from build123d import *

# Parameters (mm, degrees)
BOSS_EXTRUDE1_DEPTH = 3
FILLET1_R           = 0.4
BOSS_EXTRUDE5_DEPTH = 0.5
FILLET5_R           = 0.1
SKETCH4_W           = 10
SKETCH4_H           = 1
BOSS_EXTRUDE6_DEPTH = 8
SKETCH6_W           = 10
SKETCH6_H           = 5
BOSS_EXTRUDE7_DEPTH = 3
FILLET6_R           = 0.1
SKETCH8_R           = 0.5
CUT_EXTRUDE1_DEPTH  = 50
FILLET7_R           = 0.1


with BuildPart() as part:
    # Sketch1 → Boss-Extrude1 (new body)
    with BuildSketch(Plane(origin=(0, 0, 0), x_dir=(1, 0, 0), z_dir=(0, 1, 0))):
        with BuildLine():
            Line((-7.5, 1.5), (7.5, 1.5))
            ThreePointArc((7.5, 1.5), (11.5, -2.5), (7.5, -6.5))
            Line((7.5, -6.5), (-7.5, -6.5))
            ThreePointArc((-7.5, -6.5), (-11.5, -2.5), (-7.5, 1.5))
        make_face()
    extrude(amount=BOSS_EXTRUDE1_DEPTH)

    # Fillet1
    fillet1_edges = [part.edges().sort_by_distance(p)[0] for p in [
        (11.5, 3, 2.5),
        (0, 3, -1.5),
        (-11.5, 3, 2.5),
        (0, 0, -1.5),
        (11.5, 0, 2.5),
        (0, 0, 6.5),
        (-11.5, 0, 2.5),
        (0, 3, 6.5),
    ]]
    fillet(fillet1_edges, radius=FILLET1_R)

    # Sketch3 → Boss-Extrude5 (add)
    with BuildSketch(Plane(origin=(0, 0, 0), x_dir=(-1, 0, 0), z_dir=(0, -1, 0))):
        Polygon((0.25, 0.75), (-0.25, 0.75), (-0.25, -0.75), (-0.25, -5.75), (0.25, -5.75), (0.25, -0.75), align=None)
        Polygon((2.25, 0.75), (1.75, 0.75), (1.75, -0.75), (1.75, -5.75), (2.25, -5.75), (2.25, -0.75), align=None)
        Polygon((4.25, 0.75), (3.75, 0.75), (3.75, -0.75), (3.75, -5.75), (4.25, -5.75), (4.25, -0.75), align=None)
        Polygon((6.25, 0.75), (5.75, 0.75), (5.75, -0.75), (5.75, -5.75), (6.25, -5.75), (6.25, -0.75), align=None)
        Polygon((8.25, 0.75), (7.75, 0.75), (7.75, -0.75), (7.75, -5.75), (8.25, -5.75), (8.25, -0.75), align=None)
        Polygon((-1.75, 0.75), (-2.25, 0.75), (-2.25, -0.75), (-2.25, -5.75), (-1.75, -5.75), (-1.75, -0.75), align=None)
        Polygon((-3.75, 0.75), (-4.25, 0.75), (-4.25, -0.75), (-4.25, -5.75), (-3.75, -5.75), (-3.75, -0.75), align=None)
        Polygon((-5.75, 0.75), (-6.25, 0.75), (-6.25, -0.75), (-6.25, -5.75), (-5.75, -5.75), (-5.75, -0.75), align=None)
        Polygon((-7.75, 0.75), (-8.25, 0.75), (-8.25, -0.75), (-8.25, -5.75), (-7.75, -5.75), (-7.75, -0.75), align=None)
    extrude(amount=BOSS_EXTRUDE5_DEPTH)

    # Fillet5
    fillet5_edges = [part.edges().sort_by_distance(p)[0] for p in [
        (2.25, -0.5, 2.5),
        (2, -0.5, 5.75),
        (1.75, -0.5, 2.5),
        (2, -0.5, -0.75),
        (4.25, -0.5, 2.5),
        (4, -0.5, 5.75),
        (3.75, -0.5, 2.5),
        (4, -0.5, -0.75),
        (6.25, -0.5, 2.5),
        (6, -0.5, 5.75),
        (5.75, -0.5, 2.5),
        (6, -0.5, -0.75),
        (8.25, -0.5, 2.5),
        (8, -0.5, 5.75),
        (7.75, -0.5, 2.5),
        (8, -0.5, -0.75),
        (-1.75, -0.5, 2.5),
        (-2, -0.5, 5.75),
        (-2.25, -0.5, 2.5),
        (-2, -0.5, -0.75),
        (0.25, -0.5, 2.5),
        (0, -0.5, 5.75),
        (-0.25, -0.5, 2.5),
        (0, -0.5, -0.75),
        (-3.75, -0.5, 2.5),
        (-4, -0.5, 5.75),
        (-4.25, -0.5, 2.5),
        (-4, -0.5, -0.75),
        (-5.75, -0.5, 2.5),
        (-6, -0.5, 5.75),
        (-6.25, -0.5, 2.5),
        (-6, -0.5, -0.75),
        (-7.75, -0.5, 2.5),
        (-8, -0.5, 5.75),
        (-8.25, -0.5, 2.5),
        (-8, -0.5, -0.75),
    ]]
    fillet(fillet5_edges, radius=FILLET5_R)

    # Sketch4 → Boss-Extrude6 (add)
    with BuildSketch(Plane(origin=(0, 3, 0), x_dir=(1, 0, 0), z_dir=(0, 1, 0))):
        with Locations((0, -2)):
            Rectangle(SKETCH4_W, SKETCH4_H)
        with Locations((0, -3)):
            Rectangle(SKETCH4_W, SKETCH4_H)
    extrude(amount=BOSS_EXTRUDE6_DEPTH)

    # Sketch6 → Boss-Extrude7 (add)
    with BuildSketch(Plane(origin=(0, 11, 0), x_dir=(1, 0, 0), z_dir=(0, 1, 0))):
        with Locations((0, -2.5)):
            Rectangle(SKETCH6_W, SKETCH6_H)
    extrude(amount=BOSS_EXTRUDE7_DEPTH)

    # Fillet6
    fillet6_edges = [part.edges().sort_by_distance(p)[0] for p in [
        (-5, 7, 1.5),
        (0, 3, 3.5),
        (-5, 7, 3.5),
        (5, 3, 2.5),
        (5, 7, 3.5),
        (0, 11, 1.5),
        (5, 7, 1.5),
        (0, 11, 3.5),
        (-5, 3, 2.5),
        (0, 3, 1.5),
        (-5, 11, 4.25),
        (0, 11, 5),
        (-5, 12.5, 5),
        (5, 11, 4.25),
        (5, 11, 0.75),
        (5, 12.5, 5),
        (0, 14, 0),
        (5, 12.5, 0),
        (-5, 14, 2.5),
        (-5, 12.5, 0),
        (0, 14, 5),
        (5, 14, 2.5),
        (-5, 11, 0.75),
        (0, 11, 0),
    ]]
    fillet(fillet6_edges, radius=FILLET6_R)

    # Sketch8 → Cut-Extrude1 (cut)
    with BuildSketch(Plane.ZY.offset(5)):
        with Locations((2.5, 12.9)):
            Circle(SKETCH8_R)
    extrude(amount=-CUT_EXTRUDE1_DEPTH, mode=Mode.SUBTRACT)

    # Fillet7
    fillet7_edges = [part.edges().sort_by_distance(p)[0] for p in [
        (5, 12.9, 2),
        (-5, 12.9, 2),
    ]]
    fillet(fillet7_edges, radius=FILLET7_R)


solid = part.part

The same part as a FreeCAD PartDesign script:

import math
import FreeCAD as App
import Part
import Sketcher

V = App.Vector
Q = App.Units.Quantity


def edges_at(feature, points):
    """Names of the edges that pass closest to the given points."""
    edges = feature.Shape.Edges
    near = lambda p: min(range(len(edges)), key=lambda i: edges[i].distToShape(Part.Vertex(*p))[0])
    return sorted({f"Edge{near(p) + 1}" for p in points})

doc = App.newDocument("Part")
body = doc.addObject("PartDesign::Body", "Body")

# Sketch on XZ plane
sketch1 = body.newObject("Sketcher::SketchObject", "Sketch")
sketch1.AttachmentSupport = (doc.getObject("XZ_Plane"), [""])
sketch1.MapMode = "FlatFace"
sketch1.addGeometry(Part.LineSegment(V(7.5, -1.5, 0), V(-7.5, -1.5, 0)), False)
sketch1.addGeometry(Part.ArcOfCircle(Part.Circle(V(-7.5, 2.5, 0), V(0, 0, 1), 4), math.radians(90), math.radians(270)), False)
sketch1.addGeometry(Part.LineSegment(V(-7.5, 6.5, 0), V(7.5, 6.5, 0)), False)
sketch1.addGeometry(Part.ArcOfCircle(Part.Circle(V(7.5, 2.5, 0), V(0, 0, 1), 4), math.radians(-90), math.radians(90)), False)
sketch1.addConstraint(Sketcher.Constraint("Tangent", 0, 2, 1, 2))
sketch1.addConstraint(Sketcher.Constraint("Tangent", 1, 1, 2, 1))
sketch1.addConstraint(Sketcher.Constraint("Tangent", 2, 2, 3, 2))
sketch1.addConstraint(Sketcher.Constraint("Tangent", 3, 1, 0, 1))
sketch1.addConstraint(Sketcher.Constraint("Horizontal", 0))
sketch1.addConstraint(Sketcher.Constraint("Horizontal", 2))
sketch1.addConstraint(Sketcher.Constraint("Radius", 1, Q("4 mm")))
sketch1.addConstraint(Sketcher.Constraint("DistanceX", 0, 2, 0, 1, Q("15 mm")))
sketch1.addConstraint(Sketcher.Constraint("DistanceX", 1, 3, -1, 1, Q("7.5 mm")))
sketch1.addConstraint(Sketcher.Constraint("DistanceY", -1, 1, 1, 3, Q("2.5 mm")))
pad1 = body.newObject("PartDesign::Pad", "Pad")
pad1.Profile = sketch1
pad1.Length = 3
pad1.Reversed = True
doc.recompute()

fillet = body.newObject("PartDesign::Fillet", "Fillet")
fillet.Base = (pad1, edges_at(pad1, [
    (11.5, 3, 2.5),
    (0, 3, -1.5),
    (-11.5, 3, 2.5),
    (0, 0, -1.5),
    (11.5, 0, 2.5),
    (0, 0, 6.5),
    (-11.5, 0, 2.5),
    (0, 3, 6.5),
]))
fillet.Radius = 0.4

# Sketch on XZ plane
sketch2 = body.newObject("Sketcher::SketchObject", "Sketch001")
sketch2.AttachmentSupport = (doc.getObject("XZ_Plane"), [""])
sketch2.MapMode = "FlatFace"
sketch2.addGeometry(Part.LineSegment(V(-0.2, -0.8, 0), V(0.2, -0.8, 0)), False)
sketch2.addGeometry(Part.LineSegment(V(0.2, -0.8, 0), V(0.2, 5.8, 0)), False)
sketch2.addGeometry(Part.LineSegment(V(0.2, 5.8, 0), V(-0.2, 5.8, 0)), False)
sketch2.addGeometry(Part.LineSegment(V(-0.2, 5.8, 0), V(-0.2, -0.8, 0)), False)
sketch2.addGeometry(Part.LineSegment(V(-2.2, -0.8, 0), V(-1.8, -0.8, 0)), False)
sketch2.addGeometry(Part.LineSegment(V(-1.8, -0.8, 0), V(-1.8, 5.8, 0)), False)
sketch2.addGeometry(Part.LineSegment(V(-1.8, 5.8, 0), V(-2.2, 5.8, 0)), False)
sketch2.addGeometry(Part.LineSegment(V(-2.2, 5.8, 0), V(-2.2, -0.8, 0)), False)
sketch2.addGeometry(Part.LineSegment(V(-4.2, -0.8, 0), V(-3.8, -0.8, 0)), False)
sketch2.addGeometry(Part.LineSegment(V(-3.8, -0.8, 0), V(-3.8, 5.8, 0)), False)
sketch2.addGeometry(Part.LineSegment(V(-3.8, 5.8, 0), V(-4.2, 5.8, 0)), False)
sketch2.addGeometry(Part.LineSegment(V(-4.2, 5.8, 0), V(-4.2, -0.8, 0)), False)
sketch2.addGeometry(Part.LineSegment(V(-6.2, -0.8, 0), V(-5.8, -0.8, 0)), False)
sketch2.addGeometry(Part.LineSegment(V(-5.8, -0.8, 0), V(-5.8, 5.8, 0)), False)
sketch2.addGeometry(Part.LineSegment(V(-5.8, 5.8, 0), V(-6.2, 5.8, 0)), False)
sketch2.addGeometry(Part.LineSegment(V(-6.2, 5.8, 0), V(-6.2, -0.8, 0)), False)
sketch2.addGeometry(Part.LineSegment(V(-8.2, -0.8, 0), V(-7.8, -0.8, 0)), False)
sketch2.addGeometry(Part.LineSegment(V(-7.8, -0.8, 0), V(-7.8, 5.8, 0)), False)
sketch2.addGeometry(Part.LineSegment(V(-7.8, 5.8, 0), V(-8.2, 5.8, 0)), False)
sketch2.addGeometry(Part.LineSegment(V(-8.2, 5.8, 0), V(-8.2, -0.8, 0)), False)
sketch2.addGeometry(Part.LineSegment(V(1.8, -0.8, 0), V(2.2, -0.8, 0)), False)
sketch2.addGeometry(Part.LineSegment(V(2.2, -0.8, 0), V(2.2, 5.8, 0)), False)
sketch2.addGeometry(Part.LineSegment(V(2.2, 5.8, 0), V(1.8, 5.8, 0)), False)
sketch2.addGeometry(Part.LineSegment(V(1.8, 5.8, 0), V(1.8, -0.8, 0)), False)
sketch2.addGeometry(Part.LineSegment(V(3.8, -0.8, 0), V(4.2, -0.8, 0)), False)
sketch2.addGeometry(Part.LineSegment(V(4.2, -0.8, 0), V(4.2, 5.8, 0)), False)
sketch2.addGeometry(Part.LineSegment(V(4.2, 5.8, 0), V(3.8, 5.8, 0)), False)
sketch2.addGeometry(Part.LineSegment(V(3.8, 5.8, 0), V(3.8, -0.8, 0)), False)
sketch2.addGeometry(Part.LineSegment(V(5.8, -0.8, 0), V(6.2, -0.8, 0)), False)
sketch2.addGeometry(Part.LineSegment(V(6.2, -0.8, 0), V(6.2, 5.8, 0)), False)
sketch2.addGeometry(Part.LineSegment(V(6.2, 5.8, 0), V(5.8, 5.8, 0)), False)
sketch2.addGeometry(Part.LineSegment(V(5.8, 5.8, 0), V(5.8, -0.8, 0)), False)
sketch2.addGeometry(Part.LineSegment(V(7.8, -0.8, 0), V(8.2, -0.8, 0)), False)
sketch2.addGeometry(Part.LineSegment(V(8.2, -0.8, 0), V(8.2, 5.8, 0)), False)
sketch2.addGeometry(Part.LineSegment(V(8.2, 5.8, 0), V(7.8, 5.8, 0)), False)
sketch2.addGeometry(Part.LineSegment(V(7.8, 5.8, 0), V(7.8, -0.8, 0)), False)
sketch2.addConstraint(Sketcher.Constraint("Coincident", 0, 2, 1, 1))
sketch2.addConstraint(Sketcher.Constraint("Coincident", 1, 2, 2, 1))
sketch2.addConstraint(Sketcher.Constraint("Coincident", 2, 2, 3, 1))
sketch2.addConstraint(Sketcher.Constraint("Coincident", 3, 2, 0, 1))
sketch2.addConstraint(Sketcher.Constraint("Coincident", 4, 2, 5, 1))
sketch2.addConstraint(Sketcher.Constraint("Coincident", 5, 2, 6, 1))
sketch2.addConstraint(Sketcher.Constraint("Coincident", 6, 2, 7, 1))
sketch2.addConstraint(Sketcher.Constraint("Coincident", 7, 2, 4, 1))
sketch2.addConstraint(Sketcher.Constraint("Coincident", 8, 2, 9, 1))
sketch2.addConstraint(Sketcher.Constraint("Coincident", 9, 2, 10, 1))
sketch2.addConstraint(Sketcher.Constraint("Coincident", 10, 2, 11, 1))
sketch2.addConstraint(Sketcher.Constraint("Coincident", 11, 2, 8, 1))
sketch2.addConstraint(Sketcher.Constraint("Coincident", 12, 2, 13, 1))
sketch2.addConstraint(Sketcher.Constraint("Coincident", 13, 2, 14, 1))
sketch2.addConstraint(Sketcher.Constraint("Coincident", 14, 2, 15, 1))
sketch2.addConstraint(Sketcher.Constraint("Coincident", 15, 2, 12, 1))
sketch2.addConstraint(Sketcher.Constraint("Coincident", 16, 2, 17, 1))
sketch2.addConstraint(Sketcher.Constraint("Coincident", 17, 2, 18, 1))
sketch2.addConstraint(Sketcher.Constraint("Coincident", 18, 2, 19, 1))
sketch2.addConstraint(Sketcher.Constraint("Coincident", 19, 2, 16, 1))
sketch2.addConstraint(Sketcher.Constraint("Coincident", 20, 2, 21, 1))
sketch2.addConstraint(Sketcher.Constraint("Coincident", 21, 2, 22, 1))
sketch2.addConstraint(Sketcher.Constraint("Coincident", 22, 2, 23, 1))
sketch2.addConstraint(Sketcher.Constraint("Coincident", 23, 2, 20, 1))
sketch2.addConstraint(Sketcher.Constraint("Coincident", 24, 2, 25, 1))
sketch2.addConstraint(Sketcher.Constraint("Coincident", 25, 2, 26, 1))
sketch2.addConstraint(Sketcher.Constraint("Coincident", 26, 2, 27, 1))
sketch2.addConstraint(Sketcher.Constraint("Coincident", 27, 2, 24, 1))
sketch2.addConstraint(Sketcher.Constraint("Coincident", 28, 2, 29, 1))
sketch2.addConstraint(Sketcher.Constraint("Coincident", 29, 2, 30, 1))
sketch2.addConstraint(Sketcher.Constraint("Coincident", 30, 2, 31, 1))
sketch2.addConstraint(Sketcher.Constraint("Coincident", 31, 2, 28, 1))
sketch2.addConstraint(Sketcher.Constraint("Coincident", 32, 2, 33, 1))
sketch2.addConstraint(Sketcher.Constraint("Coincident", 33, 2, 34, 1))
sketch2.addConstraint(Sketcher.Constraint("Coincident", 34, 2, 35, 1))
sketch2.addConstraint(Sketcher.Constraint("Coincident", 35, 2, 32, 1))
sketch2.addConstraint(Sketcher.Constraint("Horizontal", 0))
sketch2.addConstraint(Sketcher.Constraint("Vertical", 1))
sketch2.addConstraint(Sketcher.Constraint("Horizontal", 2))
sketch2.addConstraint(Sketcher.Constraint("Vertical", 3))
sketch2.addConstraint(Sketcher.Constraint("Horizontal", 4))
sketch2.addConstraint(Sketcher.Constraint("Vertical", 5))
sketch2.addConstraint(Sketcher.Constraint("Horizontal", 6))
sketch2.addConstraint(Sketcher.Constraint("Vertical", 7))
sketch2.addConstraint(Sketcher.Constraint("Horizontal", 8))
sketch2.addConstraint(Sketcher.Constraint("Vertical", 9))
sketch2.addConstraint(Sketcher.Constraint("Horizontal", 10))
sketch2.addConstraint(Sketcher.Constraint("Vertical", 11))
sketch2.addConstraint(Sketcher.Constraint("Horizontal", 12))
sketch2.addConstraint(Sketcher.Constraint("Vertical", 13))
sketch2.addConstraint(Sketcher.Constraint("Horizontal", 14))
sketch2.addConstraint(Sketcher.Constraint("Vertical", 15))
sketch2.addConstraint(Sketcher.Constraint("Horizontal", 16))
sketch2.addConstraint(Sketcher.Constraint("Vertical", 17))
sketch2.addConstraint(Sketcher.Constraint("Horizontal", 18))
sketch2.addConstraint(Sketcher.Constraint("Vertical", 19))
sketch2.addConstraint(Sketcher.Constraint("Horizontal", 20))
sketch2.addConstraint(Sketcher.Constraint("Vertical", 21))
sketch2.addConstraint(Sketcher.Constraint("Horizontal", 22))
sketch2.addConstraint(Sketcher.Constraint("Vertical", 23))
sketch2.addConstraint(Sketcher.Constraint("Horizontal", 24))
sketch2.addConstraint(Sketcher.Constraint("Vertical", 25))
sketch2.addConstraint(Sketcher.Constraint("Horizontal", 26))
sketch2.addConstraint(Sketcher.Constraint("Vertical", 27))
sketch2.addConstraint(Sketcher.Constraint("Horizontal", 28))
sketch2.addConstraint(Sketcher.Constraint("Vertical", 29))
sketch2.addConstraint(Sketcher.Constraint("Horizontal", 30))
sketch2.addConstraint(Sketcher.Constraint("Vertical", 31))
sketch2.addConstraint(Sketcher.Constraint("Horizontal", 32))
sketch2.addConstraint(Sketcher.Constraint("Vertical", 33))
sketch2.addConstraint(Sketcher.Constraint("Horizontal", 34))
sketch2.addConstraint(Sketcher.Constraint("Vertical", 35))
sketch2.addConstraint(Sketcher.Constraint("Symmetric", 7, 2, 20, 2, -2))
sketch2.addConstraint(Sketcher.Constraint("Symmetric", 5, 2, 22, 2, -2))
sketch2.addConstraint(Sketcher.Constraint("Symmetric", 11, 2, 24, 2, -2))
sketch2.addConstraint(Sketcher.Constraint("Symmetric", 9, 2, 26, 2, -2))
sketch2.addConstraint(Sketcher.Constraint("Symmetric", 15, 2, 28, 2, -2))
sketch2.addConstraint(Sketcher.Constraint("Symmetric", 13, 2, 30, 2, -2))
sketch2.addConstraint(Sketcher.Constraint("Symmetric", 19, 2, 32, 2, -2))
sketch2.addConstraint(Sketcher.Constraint("Symmetric", 17, 2, 34, 2, -2))
sketch2.addConstraint(Sketcher.Constraint("Horizontal", 3, 2, 4, 2))
sketch2.addConstraint(Sketcher.Constraint("Horizontal", 2, 2, 5, 2))
sketch2.addConstraint(Sketcher.Constraint("Horizontal", 7, 2, 8, 2))
sketch2.addConstraint(Sketcher.Constraint("Horizontal", 6, 2, 9, 2))
sketch2.addConstraint(Sketcher.Constraint("Horizontal", 11, 2, 12, 2))
sketch2.addConstraint(Sketcher.Constraint("Horizontal", 10, 2, 13, 2))
sketch2.addConstraint(Sketcher.Constraint("Horizontal", 15, 2, 16, 2))
sketch2.addConstraint(Sketcher.Constraint("Horizontal", 14, 2, 17, 2))
sketch2.addConstraint(Sketcher.Constraint("Equal", 2, 4))
sketch2.addConstraint(Sketcher.Constraint("Equal", 6, 8))
sketch2.addConstraint(Sketcher.Constraint("Equal", 10, 12))
sketch2.addConstraint(Sketcher.Constraint("Equal", 14, 16))
sketch2.addConstraint(Sketcher.Constraint("DistanceX", 0, 1, 0, 2, Q("0.5 mm")))
sketch2.addConstraint(Sketcher.Constraint("DistanceY", 1, 1, 1, 2, Q("6.5 mm")))
sketch2.addConstraint(Sketcher.Constraint("DistanceX", 4, 2, 0, 2, Q("2 mm")))
sketch2.addConstraint(Sketcher.Constraint("DistanceX", 8, 2, 4, 2, Q("2 mm")))
sketch2.addConstraint(Sketcher.Constraint("DistanceX", 12, 2, 8, 2, Q("2 mm")))
sketch2.addConstraint(Sketcher.Constraint("DistanceX", 16, 2, 12, 2, Q("2 mm")))
sketch2.addConstraint(Sketcher.Constraint("DistanceX", 0, 2, 20, 2, Q("2 mm")))
sketch2.addConstraint(Sketcher.Constraint("DistanceY", 0, 2, -1, 1, Q("0.75 mm")))
pad2 = body.newObject("PartDesign::Pad", "Pad001")
pad2.Profile = sketch2
pad2.Length = 0.5
doc.recompute()

fillet2 = body.newObject("PartDesign::Fillet", "Fillet001")
fillet2.Base = (pad2, edges_at(pad2, [
    (2.25, -0.5, 2.5),
    (2, -0.5, 5.75),
    (1.75, -0.5, 2.5),
    (2, -0.5, -0.75),
    (4.25, -0.5, 2.5),
    (4, -0.5, 5.75),
    (3.75, -0.5, 2.5),
    (4, -0.5, -0.75),
    (6.25, -0.5, 2.5),
    (6, -0.5, 5.75),
    (5.75, -0.5, 2.5),
    (6, -0.5, -0.75),
    (8.25, -0.5, 2.5),
    (8, -0.5, 5.75),
    (7.75, -0.5, 2.5),
    (8, -0.5, -0.75),
    (-1.75, -0.5, 2.5),
    (-2, -0.5, 5.75),
    (-2.25, -0.5, 2.5),
    (-2, -0.5, -0.75),
    (0.25, -0.5, 2.5),
    (0, -0.5, 5.75),
    (-0.25, -0.5, 2.5),
    (0, -0.5, -0.75),
    (-3.75, -0.5, 2.5),
    (-4, -0.5, 5.75),
    (-4.25, -0.5, 2.5),
    (-4, -0.5, -0.75),
    (-5.75, -0.5, 2.5),
    (-6, -0.5, 5.75),
    (-6.25, -0.5, 2.5),
    (-6, -0.5, -0.75),
    (-7.75, -0.5, 2.5),
    (-8, -0.5, 5.75),
    (-8.25, -0.5, 2.5),
    (-8, -0.5, -0.75),
]))
fillet2.Radius = 0.1

# Sketch on XZ plane
sketch3 = body.newObject("Sketcher::SketchObject", "Sketch002")
sketch3.AttachmentSupport = (doc.getObject("XZ_Plane"), [""])
sketch3.MapMode = "FlatFace"
sketch3.AttachmentOffset = App.Placement(V(0, 0, -3), App.Rotation())
sketch3.addGeometry(Part.LineSegment(V(-5, 1.5, 0), V(-5, 3.5, 0)), False)
sketch3.addGeometry(Part.LineSegment(V(-5, 3.5, 0), V(5, 3.5, 0)), False)
sketch3.addGeometry(Part.LineSegment(V(5, 3.5, 0), V(5, 1.5, 0)), False)
sketch3.addGeometry(Part.LineSegment(V(5, 1.5, 0), V(-5, 1.5, 0)), False)
sketch3.addConstraint(Sketcher.Constraint("Coincident", 0, 2, 1, 1))
sketch3.addConstraint(Sketcher.Constraint("Coincident", 1, 2, 2, 1))
sketch3.addConstraint(Sketcher.Constraint("Coincident", 2, 2, 3, 1))
sketch3.addConstraint(Sketcher.Constraint("Coincident", 3, 2, 0, 1))
sketch3.addConstraint(Sketcher.Constraint("Vertical", 0))
sketch3.addConstraint(Sketcher.Constraint("Horizontal", 1))
sketch3.addConstraint(Sketcher.Constraint("Vertical", 2))
sketch3.addConstraint(Sketcher.Constraint("Horizontal", 3))
sketch3.addConstraint(Sketcher.Constraint("DistanceX", 1, 1, 1, 2, Q("10 mm")))
sketch3.addConstraint(Sketcher.Constraint("DistanceY", 0, 1, 0, 2, Q("2 mm")))
sketch3.addConstraint(Sketcher.Constraint("DistanceX", 0, 2, -1, 1, Q("5 mm")))
sketch3.addConstraint(Sketcher.Constraint("DistanceY", -1, 1, 0, 2, Q("3.5 mm")))
pad3 = body.newObject("PartDesign::Pad", "Pad002")
pad3.Profile = sketch3
pad3.Length = 8
pad3.Reversed = True

# Sketch on XZ plane
sketch4 = body.newObject("Sketcher::SketchObject", "Sketch003")
sketch4.AttachmentSupport = (doc.getObject("XZ_Plane"), [""])
sketch4.MapMode = "FlatFace"
sketch4.AttachmentOffset = App.Placement(V(0, 0, -11), App.Rotation())
sketch4.addGeometry(Part.LineSegment(V(-5, 0, 0), V(-5, 5, 0)), False)
sketch4.addGeometry(Part.LineSegment(V(-5, 5, 0), V(5, 5, 0)), False)
sketch4.addGeometry(Part.LineSegment(V(5, 5, 0), V(5, 0, 0)), False)
sketch4.addGeometry(Part.LineSegment(V(5, 0, 0), V(-5, 0, 0)), False)
sketch4.addConstraint(Sketcher.Constraint("Coincident", 0, 2, 1, 1))
sketch4.addConstraint(Sketcher.Constraint("Coincident", 1, 2, 2, 1))
sketch4.addConstraint(Sketcher.Constraint("Coincident", 2, 2, 3, 1))
sketch4.addConstraint(Sketcher.Constraint("Coincident", 3, 2, 0, 1))
sketch4.addConstraint(Sketcher.Constraint("Vertical", 0))
sketch4.addConstraint(Sketcher.Constraint("Horizontal", 1))
sketch4.addConstraint(Sketcher.Constraint("Vertical", 2))
sketch4.addConstraint(Sketcher.Constraint("Horizontal", 3))
sketch4.addConstraint(Sketcher.Constraint("Symmetric", 2, 2, 3, 2, -1, 1))
sketch4.addConstraint(Sketcher.Constraint("DistanceX", 1, 1, 1, 2, Q("10 mm")))
sketch4.addConstraint(Sketcher.Constraint("DistanceY", 0, 1, 0, 2, Q("5 mm")))
pad4 = body.newObject("PartDesign::Pad", "Pad003")
pad4.Profile = sketch4
pad4.Length = 3
pad4.Reversed = True
doc.recompute()

fillet3 = body.newObject("PartDesign::Fillet", "Fillet002")
fillet3.Base = (pad4, edges_at(pad4, [
    (-5, 7, 1.5),
    (0, 3, 3.5),
    (-5, 7, 3.5),
    (5, 3, 2.5),
    (5, 7, 3.5),
    (0, 11, 1.5),
    (5, 7, 1.5),
    (0, 11, 3.5),
    (-5, 3, 2.5),
    (0, 3, 1.5),
    (-5, 11, 4.25),
    (0, 11, 5),
    (-5, 12.5, 5),
    (5, 11, 4.25),
    (5, 11, 0.75),
    (5, 12.5, 5),
    (0, 14, 0),
    (5, 12.5, 0),
    (-5, 14, 2.5),
    (-5, 12.5, 0),
    (0, 14, 5),
    (5, 14, 2.5),
    (-5, 11, 0.75),
    (0, 11, 0),
]))
fillet3.Radius = 0.1

# Sketch on YZ plane
sketch5 = body.newObject("Sketcher::SketchObject", "Sketch004")
sketch5.AttachmentSupport = (doc.getObject("YZ_Plane"), [""])
sketch5.MapMode = "FlatFace"
sketch5.AttachmentOffset = App.Placement(V(0, 0, -5), App.Rotation())
sketch5.addGeometry(Part.Circle(V(12.9, 2.5, 0), V(0, 0, 1), 0.5), False)
sketch5.addConstraint(Sketcher.Constraint("Diameter", 0, Q("1 mm")))
sketch5.addConstraint(Sketcher.Constraint("DistanceX", -1, 1, 0, 3, Q("12.9 mm")))
sketch5.addConstraint(Sketcher.Constraint("DistanceY", -1, 1, 0, 3, Q("2.5 mm")))
pocket1 = body.newObject("PartDesign::Pocket", "Pocket")
pocket1.Profile = sketch5
pocket1.Length = 50
pocket1.Reversed = True
doc.recompute()

fillet4 = body.newObject("PartDesign::Fillet", "Fillet003")
fillet4.Base = (pocket1, edges_at(pocket1, [(5, 12.9, 2), (-5, 12.9, 2)]))
fillet4.Radius = 0.1

doc.recompute()
